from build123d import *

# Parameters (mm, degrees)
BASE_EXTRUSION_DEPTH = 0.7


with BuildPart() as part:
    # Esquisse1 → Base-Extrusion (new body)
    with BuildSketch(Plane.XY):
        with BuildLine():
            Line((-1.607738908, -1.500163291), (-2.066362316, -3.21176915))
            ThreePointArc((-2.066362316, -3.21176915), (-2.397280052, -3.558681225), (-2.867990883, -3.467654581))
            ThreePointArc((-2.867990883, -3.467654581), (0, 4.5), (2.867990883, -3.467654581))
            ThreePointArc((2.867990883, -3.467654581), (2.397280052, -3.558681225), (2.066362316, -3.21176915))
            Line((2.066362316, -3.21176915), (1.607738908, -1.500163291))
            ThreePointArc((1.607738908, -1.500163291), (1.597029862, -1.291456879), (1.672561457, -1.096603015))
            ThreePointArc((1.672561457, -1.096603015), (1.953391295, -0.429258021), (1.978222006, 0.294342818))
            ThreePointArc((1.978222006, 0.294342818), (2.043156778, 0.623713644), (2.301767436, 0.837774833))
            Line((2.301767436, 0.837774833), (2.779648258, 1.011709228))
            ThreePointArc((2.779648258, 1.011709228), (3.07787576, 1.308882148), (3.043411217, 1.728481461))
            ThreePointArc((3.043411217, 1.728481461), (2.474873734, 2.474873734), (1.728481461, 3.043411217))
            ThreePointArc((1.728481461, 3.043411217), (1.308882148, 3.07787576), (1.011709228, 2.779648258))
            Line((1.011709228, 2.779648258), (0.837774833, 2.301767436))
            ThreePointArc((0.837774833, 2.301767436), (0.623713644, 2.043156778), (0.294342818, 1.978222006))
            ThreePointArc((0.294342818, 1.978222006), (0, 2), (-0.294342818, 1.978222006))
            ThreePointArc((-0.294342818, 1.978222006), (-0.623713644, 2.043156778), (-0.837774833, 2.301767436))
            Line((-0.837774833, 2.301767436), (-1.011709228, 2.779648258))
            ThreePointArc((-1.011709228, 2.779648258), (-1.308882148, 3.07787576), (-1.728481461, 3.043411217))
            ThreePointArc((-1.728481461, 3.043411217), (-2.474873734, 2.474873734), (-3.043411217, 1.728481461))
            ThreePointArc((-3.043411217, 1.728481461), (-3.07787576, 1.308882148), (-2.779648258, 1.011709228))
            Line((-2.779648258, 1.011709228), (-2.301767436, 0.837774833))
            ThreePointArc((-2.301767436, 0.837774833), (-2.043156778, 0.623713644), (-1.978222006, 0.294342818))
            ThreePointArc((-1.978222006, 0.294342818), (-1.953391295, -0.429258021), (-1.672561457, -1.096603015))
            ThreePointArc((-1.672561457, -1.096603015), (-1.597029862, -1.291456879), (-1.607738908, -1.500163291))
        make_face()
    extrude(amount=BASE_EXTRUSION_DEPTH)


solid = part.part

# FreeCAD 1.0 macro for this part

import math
import FreeCAD as App
import Part
import Sketcher

V = App.Vector
Q = App.Units.Quantity

doc = App.newDocument("Part")
body = doc.addObject("PartDesign::Body", "Body")

# Sketch on XY plane
sketch1 = body.newObject("Sketcher::SketchObject", "Sketch")
sketch1.AttachmentSupport = (doc.getObject("XY_Plane"), [""])
sketch1.MapMode = "FlatFace"
sketch1.addGeometry(Part.LineSegment(V(-2.07, -3.21, 0), V(-1.61, -1.5, 0)), False)
sketch1.addGeometry(Part.ArcOfCircle(Part.Circle(V(-2.09, -1.37, 0), V(0, 0, 1), 0.5), math.radians(-15), math.radians(33)), False)
sketch1.addGeometry(Part.ArcOfCircle(Part.Circle(V(0, 0, 0), V(0, 0, 1), 2), math.radians(172), math.radians(213)), False)
sketch1.addGeometry(Part.ArcOfCircle(Part.Circle(V(-2.47, 0.37, 0), V(0, 0, 1), 0.5), math.radians(-8), math.radians(70)), False)
sketch1.addGeometry(Part.LineSegment(V(-2.3, 0.84, 0), V(-2.78, 1.01, 0)), False)
sketch1.addGeometry(Part.ArcOfCircle(Part.Circle(V(-2.61, 1.48, 0), V(0, 0, 1), 0.5), math.radians(150), math.radians(250)), False)
sketch1.addGeometry(Part.ArcOfCircle(Part.Circle(V(0, 0, 0), V(0, 0, 1), 3.5), math.radians(120), math.radians(150)), False)
sketch1.addGeometry(Part.ArcOfCircle(Part.Circle(V(-1.48, 2.61, 0), V(0, 0, 1), 0.5), math.radians(20), math.radians(120)), False)
sketch1.addGeometry(Part.LineSegment(V(-1.01, 2.78, 0), V(-0.84, 2.3, 0)), False)
sketch1.addGeometry(Part.ArcOfCircle(Part.Circle(V(-0.37, 2.47, 0), V(0, 0, 1), 0.5), math.radians(-160), math.radians(-82)), False)
sketch1.addGeometry(Part.ArcOfCircle(Part.Circle(V(0, 0, 0), V(0, 0, 1), 2), math.radians(81.54), math.radians(98.46)), False)
sketch1.addGeometry(Part.ArcOfCircle(Part.Circle(V(0.37, 2.47, 0), V(0, 0, 1), 0.5), math.radians(-98), math.radians(-20)), False)
sketch1.addGeometry(Part.LineSegment(V(0.84, 2.3, 0), V(1.01, 2.78, 0)), False)
sketch1.addGeometry(Part.ArcOfCircle(Part.Circle(V(1.48, 2.61, 0), V(0, 0, 1), 0.5), math.radians(60), math.radians(160)), False)
sketch1.addGeometry(Part.ArcOfCircle(Part.Circle(V(0, 0, 0), V(0, 0, 1), 3.5), math.radians(30), math.radians(60)), False)
sketch1.addGeometry(Part.ArcOfCircle(Part.Circle(V(2.61, 1.48, 0), V(0, 0, 1), 0.5), math.radians(-70), math.radians(30)), False)
sketch1.addGeometry(Part.LineSegment(V(2.78, 1.01, 0), V(2.3, 0.84, 0)), False)
sketch1.addGeometry(Part.ArcOfCircle(Part.Circle(V(2.47, 0.37, 0), V(0, 0, 1), 0.5), math.radians(110), math.radians(188)), False)
sketch1.addGeometry(Part.ArcOfCircle(Part.Circle(V(0, 0, 0), V(0, 0, 1), 2), math.radians(-33), math.radians(8)), False)
sketch1.addGeometry(Part.ArcOfCircle(Part.Circle(V(2.09, -1.37, 0), V(0, 0, 1), 0.5), math.radians(147), math.radians(195)), False)
sketch1.addGeometry(Part.LineSegment(V(1.61, -1.5, 0), V(2.07, -3.21, 0)), False)
sketch1.addGeometry(Part.ArcOfCircle(Part.Circle(V(2.55, -3.08, 0), V(0, 0, 1), 0.5), math.radians(-165), math.radians(-50)), False)
sketch1.addGeometry(Part.ArcOfCircle(Part.Circle(V(0, 0, 0), V(0, 0, 1), 4.5), math.radians(-50), math.radians(230)), False)
sketch1.addGeometry(Part.ArcOfCircle(Part.Circle(V(-2.55, -3.08, 0), V(0, 0, 1), 0.5), math.radians(-130), math.radians(-15)), False)
sketch1.addConstraint(Sketcher.Constraint("Tangent", 0, 2, 1, 1))
sketch1.addConstraint(Sketcher.Constraint("Tangent", 1, 2, 2, 2))
sketch1.addConstraint(Sketcher.Constraint("Tangent", 2, 1, 3, 1))
sketch1.addConstraint(Sketcher.Constraint("Tangent", 3, 2, 4, 1))
sketch1.addConstraint(Sketcher.Constraint("Tangent", 4, 2, 5, 2))
sketch1.addConstraint(Sketcher.Constraint("Tangent", 5, 1, 6, 2))
sketch1.addConstraint(Sketcher.Constraint("Tangent", 6, 1, 7, 2))
sketch1.addConstraint(Sketcher.Constraint("Tangent", 7, 1, 8, 1))
sketch1.addConstraint(Sketcher.Constraint("Tangent", 8, 2, 9, 1))
sketch1.addConstraint(Sketcher.Constraint("Tangent", 9, 2, 10, 2))
sketch1.addConstraint(Sketcher.Constraint("Tangent", 10, 1, 11, 1))
sketch1.addConstraint(Sketcher.Constraint("Tangent", 11, 2, 12, 1))
sketch1.addConstraint(Sketcher.Constraint("Tangent", 12, 2, 13, 2))
sketch1.addConstraint(Sketcher.Constraint("Tangent", 13, 1, 14, 2))
sketch1.addConstraint(Sketcher.Constraint("Tangent", 14, 1, 15, 2))
sketch1.addConstraint(Sketcher.Constraint("Tangent", 15, 1, 16, 1))
sketch1.addConstraint(Sketcher.Constraint("Tangent", 16, 2, 17, 1))
sketch1.addConstraint(Sketcher.Constraint("Tangent", 17, 2, 18, 2))
sketch1.addConstraint(Sketcher.Constraint("Tangent", 18, 1, 19, 1))
sketch1.addConstraint(Sketcher.Constraint("Tangent", 19, 2, 20, 1))
sketch1.addConstraint(Sketcher.Constraint("Tangent", 20, 2, 21, 1))
sketch1.addConstraint(Sketcher.Constraint("Tangent", 21, 2, 22, 1))
sketch1.addConstraint(Sketcher.Constraint("Tangent", 22, 2, 23, 1))
sketch1.addConstraint(Sketcher.Constraint("Tangent", 23, 2, 0, 1))
sketch1.addConstraint(Sketcher.Constraint("Coincident", 2, 3, -1, 1))
sketch1.addConstraint(Sketcher.Constraint("Coincident", 6, 3, -1, 1))
sketch1.addConstraint(Sketcher.Constraint("Coincident", 10, 3, -1, 1))
sketch1.addConstraint(Sketcher.Constraint("Coincident", 14, 3, -1, 1))
sketch1.addConstraint(Sketcher.Constraint("Coincident", 18, 3, -1, 1))
sketch1.addConstraint(Sketcher.Constraint("Coincident", 22, 3, -1, 1))
sketch1.addConstraint(Sketcher.Constraint("Equal", 1, 3))
sketch1.addConstraint(Sketcher.Constraint("Equal", 3, 5))
sketch1.addConstraint(Sketcher.Constraint("Equal", 5, 7))
sketch1.addConstraint(Sketcher.Constraint("Equal", 7, 9))
sketch1.addConstraint(Sketcher.Constraint("Equal", 2, 10))
sketch1.addConstraint(Sketcher.Constraint("Equal", 9, 11))
sketch1.addConstraint(Sketcher.Constraint("Equal", 11, 13))
sketch1.addConstraint(Sketcher.Constraint("Equal", 6, 14))
sketch1.addConstraint(Sketcher.Constraint("Equal", 13, 15))
sketch1.addConstraint(Sketcher.Constraint("Equal", 15, 17))
sketch1.addConstraint(Sketcher.Constraint("Equal", 10, 18))
sketch1.addConstraint(Sketcher.Constraint("Equal", 17, 19))
sketch1.addConstraint(Sketcher.Constraint("Equal", 19, 21))
sketch1.addConstraint(Sketcher.Constraint("Equal", 21, 23))
sketch1.addConstraint(Sketcher.Constraint("Symmetric", 8, 2, 11, 2, -2))
sketch1.addConstraint(Sketcher.Constraint("Symmetric", 4, 2, 15, 1, -2))
sketch1.addConstraint(Sketcher.Constraint("Symmetric", 0, 2, 19, 2, -2))
sketch1.addConstraint(Sketcher.Constraint("Perpendicular", 4, 12))
sketch1.addConstraint(Sketcher.Constraint("Equal", 4, 8))
sketch1.addConstraint(Sketcher.Constraint("Radius", 2, 2.0))
sketch1.addConstraint(Sketcher.Constraint("Radius", 1, 0.5))
sketch1.addConstraint(Sketcher.Constraint("Radius", 6, 3.5))
sketch1.addConstraint(Sketcher.Constraint("Radius", 22, 4.5))
sketch1.addConstraint(Sketcher.Constraint("Angle", 0, Q("75 deg")))
sketch1.addConstraint(Sketcher.Constraint("Angle", 4, Q("160 deg")))
sketch1.addConstraint(Sketcher.Constraint("DistanceX", 1, 3, -1, 1, 2.090702))
sketch1.addConstraint(Sketcher.Constraint("DistanceY", 15, 1, 13, 1, 2.031702))
pad1 = body.newObject("PartDesign::Pad", "Pad")
pad1.Profile = sketch1
pad1.Length = 0.7

doc.recompute()
